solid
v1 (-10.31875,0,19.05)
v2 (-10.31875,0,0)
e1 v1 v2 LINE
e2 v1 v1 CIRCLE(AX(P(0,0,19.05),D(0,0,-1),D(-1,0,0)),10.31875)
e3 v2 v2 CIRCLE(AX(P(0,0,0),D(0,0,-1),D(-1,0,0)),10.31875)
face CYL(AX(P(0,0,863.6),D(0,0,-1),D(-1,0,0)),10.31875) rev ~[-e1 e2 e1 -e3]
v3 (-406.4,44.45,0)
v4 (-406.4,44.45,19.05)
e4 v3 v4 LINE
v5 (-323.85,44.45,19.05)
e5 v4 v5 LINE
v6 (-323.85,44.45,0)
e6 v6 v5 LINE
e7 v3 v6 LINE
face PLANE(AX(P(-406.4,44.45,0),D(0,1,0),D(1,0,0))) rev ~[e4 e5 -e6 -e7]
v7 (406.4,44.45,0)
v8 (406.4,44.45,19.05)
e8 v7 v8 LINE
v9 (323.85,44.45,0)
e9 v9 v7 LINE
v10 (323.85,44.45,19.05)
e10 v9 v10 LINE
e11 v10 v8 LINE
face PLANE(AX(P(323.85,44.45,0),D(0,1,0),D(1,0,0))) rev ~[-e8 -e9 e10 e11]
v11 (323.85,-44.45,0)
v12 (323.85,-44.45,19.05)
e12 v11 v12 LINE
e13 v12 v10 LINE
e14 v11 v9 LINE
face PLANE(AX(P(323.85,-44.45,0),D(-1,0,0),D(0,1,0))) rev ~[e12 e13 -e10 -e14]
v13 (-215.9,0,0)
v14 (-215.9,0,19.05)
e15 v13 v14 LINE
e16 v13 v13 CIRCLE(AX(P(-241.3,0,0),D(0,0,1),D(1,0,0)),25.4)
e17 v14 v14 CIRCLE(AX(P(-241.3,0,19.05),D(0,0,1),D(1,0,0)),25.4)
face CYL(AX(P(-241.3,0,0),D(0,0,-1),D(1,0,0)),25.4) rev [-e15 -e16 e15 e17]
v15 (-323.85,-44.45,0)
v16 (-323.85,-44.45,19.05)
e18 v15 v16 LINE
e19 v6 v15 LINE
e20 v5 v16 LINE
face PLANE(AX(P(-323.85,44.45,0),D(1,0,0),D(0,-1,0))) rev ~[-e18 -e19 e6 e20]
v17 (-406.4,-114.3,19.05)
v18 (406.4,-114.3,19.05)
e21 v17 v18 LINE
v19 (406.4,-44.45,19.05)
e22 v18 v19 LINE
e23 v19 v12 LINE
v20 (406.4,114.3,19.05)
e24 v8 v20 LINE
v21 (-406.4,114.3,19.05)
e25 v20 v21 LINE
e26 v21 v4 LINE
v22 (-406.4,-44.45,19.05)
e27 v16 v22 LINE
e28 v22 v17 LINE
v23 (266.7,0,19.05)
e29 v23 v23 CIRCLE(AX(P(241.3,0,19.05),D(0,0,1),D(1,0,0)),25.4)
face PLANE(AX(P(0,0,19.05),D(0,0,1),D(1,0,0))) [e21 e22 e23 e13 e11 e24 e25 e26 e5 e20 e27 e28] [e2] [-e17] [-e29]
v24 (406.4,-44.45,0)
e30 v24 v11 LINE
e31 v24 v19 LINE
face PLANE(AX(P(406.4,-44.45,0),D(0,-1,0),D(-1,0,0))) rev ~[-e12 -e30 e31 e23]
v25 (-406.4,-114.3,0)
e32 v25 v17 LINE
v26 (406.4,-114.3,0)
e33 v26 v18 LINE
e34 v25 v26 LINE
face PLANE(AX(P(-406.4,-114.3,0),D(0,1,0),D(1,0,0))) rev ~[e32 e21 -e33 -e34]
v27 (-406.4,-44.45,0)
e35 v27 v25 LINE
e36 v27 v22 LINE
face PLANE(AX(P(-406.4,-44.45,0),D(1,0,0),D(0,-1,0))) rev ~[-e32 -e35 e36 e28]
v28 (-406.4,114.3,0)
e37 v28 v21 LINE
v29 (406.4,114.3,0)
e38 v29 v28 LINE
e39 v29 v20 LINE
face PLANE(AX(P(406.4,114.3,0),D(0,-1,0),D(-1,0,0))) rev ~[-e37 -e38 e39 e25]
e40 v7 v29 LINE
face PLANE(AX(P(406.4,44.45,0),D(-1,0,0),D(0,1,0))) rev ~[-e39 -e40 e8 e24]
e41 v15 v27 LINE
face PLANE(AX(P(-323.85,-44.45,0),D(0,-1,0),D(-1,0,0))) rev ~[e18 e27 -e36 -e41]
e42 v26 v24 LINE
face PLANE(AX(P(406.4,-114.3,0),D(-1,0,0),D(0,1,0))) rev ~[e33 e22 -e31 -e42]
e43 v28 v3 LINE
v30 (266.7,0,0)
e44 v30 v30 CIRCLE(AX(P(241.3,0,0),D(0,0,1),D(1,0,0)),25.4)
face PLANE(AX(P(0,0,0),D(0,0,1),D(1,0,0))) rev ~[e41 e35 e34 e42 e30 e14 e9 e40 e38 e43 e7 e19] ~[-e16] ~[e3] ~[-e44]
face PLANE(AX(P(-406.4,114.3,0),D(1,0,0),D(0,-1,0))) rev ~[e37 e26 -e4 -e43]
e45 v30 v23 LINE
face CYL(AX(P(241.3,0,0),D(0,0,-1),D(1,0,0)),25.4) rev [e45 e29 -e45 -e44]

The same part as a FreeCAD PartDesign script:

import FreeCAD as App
import Part
import Sketcher
Q = App.Units.Quantity


def add_polygon(sketch, points):
    """Adds a closed chain of lines whose ends are joined by coincident constraints."""
    first, n = sketch.GeometryCount, len(points)
    for a, b in zip(points, points[1:] + points[:1]):
        sketch.addGeometry(Part.LineSegment(App.Vector(*a, 0), App.Vector(*b, 0)), False)
    for i in range(n):
        sketch.addConstraint(Sketcher.Constraint("Coincident", first + i, 2, first + (i + 1) % n, 1))

doc = App.newDocument("Part")
params = doc.addObject("Spreadsheet::Sheet", "Params")
for row, (alias, value) in enumerate([
    ("sketch1_diameter", "2 in"),
    ("sketch1_width", "32 in"),
    ("sketch1_height", "3.5 in"),
    ("sketch1_width2", "3.25 in"),
    ("sketch1_height2", "2.75 in"),
    ("pad1_length", "0.75 in"),
    ("sketch2_diameter", "0.8125 in"),
    ("hole_diameter", "0.8125 in"),
], start=1):
    params.set(f"A{row}", alias)
    params.set(f"B{row}", "=" + value)
    params.setAlias(f"B{row}", alias)

body = doc.addObject("PartDesign::Body", "Body")

sketch1 = body.newObject("Sketcher::SketchObject", "Sketch")
sketch1.AttachmentSupport = (doc.getObject("XY_Plane"), [""])
sketch1.MapMode = "FlatFace"
add_polygon(sketch1, [(406, 114), (-406, 114), (-406, 44), (-324, 44), (-324, -44), (-406, -44), (-406, -114), (406, -114), (406, -44), (324, -44), (324, 44), (406, 44)])
sketch1.addGeometry(Part.Circle(App.Vector(-241, 0, 0), App.Vector(0, 0, 1), 25), False)
sketch1.addGeometry(Part.Circle(App.Vector(241, 0, 0), App.Vector(0, 0, 1), 25), False)
sketch1.addConstraint([
    Sketcher.Constraint("Horizontal", 0),
    Sketcher.Constraint("Vertical", 1),
    Sketcher.Constraint("Horizontal", 2),
    Sketcher.Constraint("Vertical", 3),
    Sketcher.Constraint("Horizontal", 4),
    Sketcher.Constraint("Vertical", 5),
    Sketcher.Constraint("Horizontal", 6),
    Sketcher.Constraint("Vertical", 7),
    Sketcher.Constraint("Horizontal", 8),
    Sketcher.Constraint("Vertical", 9),
    Sketcher.Constraint("Horizontal", 10),
    Sketcher.Constraint("Vertical", 11),
    Sketcher.Constraint("Equal", 12, 13),
    Sketcher.Constraint("Symmetric", 12, 3, 13, 3, -1, 1),
    Sketcher.Constraint("Symmetric", 0, 2, 6, 2, -1, 1),
    Sketcher.Constraint("Symmetric", 2, 2, 8, 2, -1, 1),
    Sketcher.Constraint("Symmetric", 4, 2, 10, 2, -1, 1),
    Sketcher.Constraint("Symmetric", 4, 2, 7, 2, -2),
    Sketcher.Constraint("PointOnObject", 12, 3, -1),
    Sketcher.Constraint("Diameter", 12, Q("2 in")),
    Sketcher.Constraint("DistanceX", 0, 2, 0, 1, Q("32 in")),
    Sketcher.Constraint("DistanceY", 3, 2, 3, 1, Q("3.5 in")),
    Sketcher.Constraint("DistanceX", 12, 3, 13, 3, Q("19 in")),
    Sketcher.Constraint("DistanceX", 2, 1, 2, 2, Q("3.25 in")),
    Sketcher.Constraint("DistanceY", 1, 2, 1, 1, Q("2.75 in")),
])
sketch1.setExpression("Constraints[31]", "Params.sketch1_diameter")
sketch1.setExpression("Constraints[32]", "Params.sketch1_width")
sketch1.setExpression("Constraints[33]", "Params.sketch1_height")
sketch1.setExpression("Constraints[35]", "Params.sketch1_width2")
sketch1.setExpression("Constraints[36]", "Params.sketch1_height2")
pad1 = body.newObject("PartDesign::Pad", "Pad")
pad1.Profile = sketch1
pad1.setExpression("Length", "Params.pad1_length")

sketch2 = body.newObject("Sketcher::SketchObject", "Sketch001")
sketch2.AttachmentSupport = (doc.getObject("XY_Plane"), [""])
sketch2.MapMode = "FlatFace"
sketch2.AttachmentOffset = App.Placement(App.Vector(0, 0, 0.75 * 25.4), App.Rotation())
sketch2.addGeometry(Part.Circle(App.Vector(0, 0, 0), App.Vector(0, 0, 1), 10), False)
sketch2.addConstraint([
    Sketcher.Constraint("Coincident", 0, 3, -1, 1),
    Sketcher.Constraint("Diameter", 0, Q("0.8125 in")),
])
sketch2.setExpression("Constraints[1]", "Params.sketch2_diameter")
doc.recompute()
hole = body.newObject("PartDesign::Hole", "Hole")
hole.Profile = sketch2
hole.ThreadType = "None"
hole.setExpression("Diameter", "Params.hole_diameter")
hole.DepthType = "ThroughAll"

doc.recompute()
